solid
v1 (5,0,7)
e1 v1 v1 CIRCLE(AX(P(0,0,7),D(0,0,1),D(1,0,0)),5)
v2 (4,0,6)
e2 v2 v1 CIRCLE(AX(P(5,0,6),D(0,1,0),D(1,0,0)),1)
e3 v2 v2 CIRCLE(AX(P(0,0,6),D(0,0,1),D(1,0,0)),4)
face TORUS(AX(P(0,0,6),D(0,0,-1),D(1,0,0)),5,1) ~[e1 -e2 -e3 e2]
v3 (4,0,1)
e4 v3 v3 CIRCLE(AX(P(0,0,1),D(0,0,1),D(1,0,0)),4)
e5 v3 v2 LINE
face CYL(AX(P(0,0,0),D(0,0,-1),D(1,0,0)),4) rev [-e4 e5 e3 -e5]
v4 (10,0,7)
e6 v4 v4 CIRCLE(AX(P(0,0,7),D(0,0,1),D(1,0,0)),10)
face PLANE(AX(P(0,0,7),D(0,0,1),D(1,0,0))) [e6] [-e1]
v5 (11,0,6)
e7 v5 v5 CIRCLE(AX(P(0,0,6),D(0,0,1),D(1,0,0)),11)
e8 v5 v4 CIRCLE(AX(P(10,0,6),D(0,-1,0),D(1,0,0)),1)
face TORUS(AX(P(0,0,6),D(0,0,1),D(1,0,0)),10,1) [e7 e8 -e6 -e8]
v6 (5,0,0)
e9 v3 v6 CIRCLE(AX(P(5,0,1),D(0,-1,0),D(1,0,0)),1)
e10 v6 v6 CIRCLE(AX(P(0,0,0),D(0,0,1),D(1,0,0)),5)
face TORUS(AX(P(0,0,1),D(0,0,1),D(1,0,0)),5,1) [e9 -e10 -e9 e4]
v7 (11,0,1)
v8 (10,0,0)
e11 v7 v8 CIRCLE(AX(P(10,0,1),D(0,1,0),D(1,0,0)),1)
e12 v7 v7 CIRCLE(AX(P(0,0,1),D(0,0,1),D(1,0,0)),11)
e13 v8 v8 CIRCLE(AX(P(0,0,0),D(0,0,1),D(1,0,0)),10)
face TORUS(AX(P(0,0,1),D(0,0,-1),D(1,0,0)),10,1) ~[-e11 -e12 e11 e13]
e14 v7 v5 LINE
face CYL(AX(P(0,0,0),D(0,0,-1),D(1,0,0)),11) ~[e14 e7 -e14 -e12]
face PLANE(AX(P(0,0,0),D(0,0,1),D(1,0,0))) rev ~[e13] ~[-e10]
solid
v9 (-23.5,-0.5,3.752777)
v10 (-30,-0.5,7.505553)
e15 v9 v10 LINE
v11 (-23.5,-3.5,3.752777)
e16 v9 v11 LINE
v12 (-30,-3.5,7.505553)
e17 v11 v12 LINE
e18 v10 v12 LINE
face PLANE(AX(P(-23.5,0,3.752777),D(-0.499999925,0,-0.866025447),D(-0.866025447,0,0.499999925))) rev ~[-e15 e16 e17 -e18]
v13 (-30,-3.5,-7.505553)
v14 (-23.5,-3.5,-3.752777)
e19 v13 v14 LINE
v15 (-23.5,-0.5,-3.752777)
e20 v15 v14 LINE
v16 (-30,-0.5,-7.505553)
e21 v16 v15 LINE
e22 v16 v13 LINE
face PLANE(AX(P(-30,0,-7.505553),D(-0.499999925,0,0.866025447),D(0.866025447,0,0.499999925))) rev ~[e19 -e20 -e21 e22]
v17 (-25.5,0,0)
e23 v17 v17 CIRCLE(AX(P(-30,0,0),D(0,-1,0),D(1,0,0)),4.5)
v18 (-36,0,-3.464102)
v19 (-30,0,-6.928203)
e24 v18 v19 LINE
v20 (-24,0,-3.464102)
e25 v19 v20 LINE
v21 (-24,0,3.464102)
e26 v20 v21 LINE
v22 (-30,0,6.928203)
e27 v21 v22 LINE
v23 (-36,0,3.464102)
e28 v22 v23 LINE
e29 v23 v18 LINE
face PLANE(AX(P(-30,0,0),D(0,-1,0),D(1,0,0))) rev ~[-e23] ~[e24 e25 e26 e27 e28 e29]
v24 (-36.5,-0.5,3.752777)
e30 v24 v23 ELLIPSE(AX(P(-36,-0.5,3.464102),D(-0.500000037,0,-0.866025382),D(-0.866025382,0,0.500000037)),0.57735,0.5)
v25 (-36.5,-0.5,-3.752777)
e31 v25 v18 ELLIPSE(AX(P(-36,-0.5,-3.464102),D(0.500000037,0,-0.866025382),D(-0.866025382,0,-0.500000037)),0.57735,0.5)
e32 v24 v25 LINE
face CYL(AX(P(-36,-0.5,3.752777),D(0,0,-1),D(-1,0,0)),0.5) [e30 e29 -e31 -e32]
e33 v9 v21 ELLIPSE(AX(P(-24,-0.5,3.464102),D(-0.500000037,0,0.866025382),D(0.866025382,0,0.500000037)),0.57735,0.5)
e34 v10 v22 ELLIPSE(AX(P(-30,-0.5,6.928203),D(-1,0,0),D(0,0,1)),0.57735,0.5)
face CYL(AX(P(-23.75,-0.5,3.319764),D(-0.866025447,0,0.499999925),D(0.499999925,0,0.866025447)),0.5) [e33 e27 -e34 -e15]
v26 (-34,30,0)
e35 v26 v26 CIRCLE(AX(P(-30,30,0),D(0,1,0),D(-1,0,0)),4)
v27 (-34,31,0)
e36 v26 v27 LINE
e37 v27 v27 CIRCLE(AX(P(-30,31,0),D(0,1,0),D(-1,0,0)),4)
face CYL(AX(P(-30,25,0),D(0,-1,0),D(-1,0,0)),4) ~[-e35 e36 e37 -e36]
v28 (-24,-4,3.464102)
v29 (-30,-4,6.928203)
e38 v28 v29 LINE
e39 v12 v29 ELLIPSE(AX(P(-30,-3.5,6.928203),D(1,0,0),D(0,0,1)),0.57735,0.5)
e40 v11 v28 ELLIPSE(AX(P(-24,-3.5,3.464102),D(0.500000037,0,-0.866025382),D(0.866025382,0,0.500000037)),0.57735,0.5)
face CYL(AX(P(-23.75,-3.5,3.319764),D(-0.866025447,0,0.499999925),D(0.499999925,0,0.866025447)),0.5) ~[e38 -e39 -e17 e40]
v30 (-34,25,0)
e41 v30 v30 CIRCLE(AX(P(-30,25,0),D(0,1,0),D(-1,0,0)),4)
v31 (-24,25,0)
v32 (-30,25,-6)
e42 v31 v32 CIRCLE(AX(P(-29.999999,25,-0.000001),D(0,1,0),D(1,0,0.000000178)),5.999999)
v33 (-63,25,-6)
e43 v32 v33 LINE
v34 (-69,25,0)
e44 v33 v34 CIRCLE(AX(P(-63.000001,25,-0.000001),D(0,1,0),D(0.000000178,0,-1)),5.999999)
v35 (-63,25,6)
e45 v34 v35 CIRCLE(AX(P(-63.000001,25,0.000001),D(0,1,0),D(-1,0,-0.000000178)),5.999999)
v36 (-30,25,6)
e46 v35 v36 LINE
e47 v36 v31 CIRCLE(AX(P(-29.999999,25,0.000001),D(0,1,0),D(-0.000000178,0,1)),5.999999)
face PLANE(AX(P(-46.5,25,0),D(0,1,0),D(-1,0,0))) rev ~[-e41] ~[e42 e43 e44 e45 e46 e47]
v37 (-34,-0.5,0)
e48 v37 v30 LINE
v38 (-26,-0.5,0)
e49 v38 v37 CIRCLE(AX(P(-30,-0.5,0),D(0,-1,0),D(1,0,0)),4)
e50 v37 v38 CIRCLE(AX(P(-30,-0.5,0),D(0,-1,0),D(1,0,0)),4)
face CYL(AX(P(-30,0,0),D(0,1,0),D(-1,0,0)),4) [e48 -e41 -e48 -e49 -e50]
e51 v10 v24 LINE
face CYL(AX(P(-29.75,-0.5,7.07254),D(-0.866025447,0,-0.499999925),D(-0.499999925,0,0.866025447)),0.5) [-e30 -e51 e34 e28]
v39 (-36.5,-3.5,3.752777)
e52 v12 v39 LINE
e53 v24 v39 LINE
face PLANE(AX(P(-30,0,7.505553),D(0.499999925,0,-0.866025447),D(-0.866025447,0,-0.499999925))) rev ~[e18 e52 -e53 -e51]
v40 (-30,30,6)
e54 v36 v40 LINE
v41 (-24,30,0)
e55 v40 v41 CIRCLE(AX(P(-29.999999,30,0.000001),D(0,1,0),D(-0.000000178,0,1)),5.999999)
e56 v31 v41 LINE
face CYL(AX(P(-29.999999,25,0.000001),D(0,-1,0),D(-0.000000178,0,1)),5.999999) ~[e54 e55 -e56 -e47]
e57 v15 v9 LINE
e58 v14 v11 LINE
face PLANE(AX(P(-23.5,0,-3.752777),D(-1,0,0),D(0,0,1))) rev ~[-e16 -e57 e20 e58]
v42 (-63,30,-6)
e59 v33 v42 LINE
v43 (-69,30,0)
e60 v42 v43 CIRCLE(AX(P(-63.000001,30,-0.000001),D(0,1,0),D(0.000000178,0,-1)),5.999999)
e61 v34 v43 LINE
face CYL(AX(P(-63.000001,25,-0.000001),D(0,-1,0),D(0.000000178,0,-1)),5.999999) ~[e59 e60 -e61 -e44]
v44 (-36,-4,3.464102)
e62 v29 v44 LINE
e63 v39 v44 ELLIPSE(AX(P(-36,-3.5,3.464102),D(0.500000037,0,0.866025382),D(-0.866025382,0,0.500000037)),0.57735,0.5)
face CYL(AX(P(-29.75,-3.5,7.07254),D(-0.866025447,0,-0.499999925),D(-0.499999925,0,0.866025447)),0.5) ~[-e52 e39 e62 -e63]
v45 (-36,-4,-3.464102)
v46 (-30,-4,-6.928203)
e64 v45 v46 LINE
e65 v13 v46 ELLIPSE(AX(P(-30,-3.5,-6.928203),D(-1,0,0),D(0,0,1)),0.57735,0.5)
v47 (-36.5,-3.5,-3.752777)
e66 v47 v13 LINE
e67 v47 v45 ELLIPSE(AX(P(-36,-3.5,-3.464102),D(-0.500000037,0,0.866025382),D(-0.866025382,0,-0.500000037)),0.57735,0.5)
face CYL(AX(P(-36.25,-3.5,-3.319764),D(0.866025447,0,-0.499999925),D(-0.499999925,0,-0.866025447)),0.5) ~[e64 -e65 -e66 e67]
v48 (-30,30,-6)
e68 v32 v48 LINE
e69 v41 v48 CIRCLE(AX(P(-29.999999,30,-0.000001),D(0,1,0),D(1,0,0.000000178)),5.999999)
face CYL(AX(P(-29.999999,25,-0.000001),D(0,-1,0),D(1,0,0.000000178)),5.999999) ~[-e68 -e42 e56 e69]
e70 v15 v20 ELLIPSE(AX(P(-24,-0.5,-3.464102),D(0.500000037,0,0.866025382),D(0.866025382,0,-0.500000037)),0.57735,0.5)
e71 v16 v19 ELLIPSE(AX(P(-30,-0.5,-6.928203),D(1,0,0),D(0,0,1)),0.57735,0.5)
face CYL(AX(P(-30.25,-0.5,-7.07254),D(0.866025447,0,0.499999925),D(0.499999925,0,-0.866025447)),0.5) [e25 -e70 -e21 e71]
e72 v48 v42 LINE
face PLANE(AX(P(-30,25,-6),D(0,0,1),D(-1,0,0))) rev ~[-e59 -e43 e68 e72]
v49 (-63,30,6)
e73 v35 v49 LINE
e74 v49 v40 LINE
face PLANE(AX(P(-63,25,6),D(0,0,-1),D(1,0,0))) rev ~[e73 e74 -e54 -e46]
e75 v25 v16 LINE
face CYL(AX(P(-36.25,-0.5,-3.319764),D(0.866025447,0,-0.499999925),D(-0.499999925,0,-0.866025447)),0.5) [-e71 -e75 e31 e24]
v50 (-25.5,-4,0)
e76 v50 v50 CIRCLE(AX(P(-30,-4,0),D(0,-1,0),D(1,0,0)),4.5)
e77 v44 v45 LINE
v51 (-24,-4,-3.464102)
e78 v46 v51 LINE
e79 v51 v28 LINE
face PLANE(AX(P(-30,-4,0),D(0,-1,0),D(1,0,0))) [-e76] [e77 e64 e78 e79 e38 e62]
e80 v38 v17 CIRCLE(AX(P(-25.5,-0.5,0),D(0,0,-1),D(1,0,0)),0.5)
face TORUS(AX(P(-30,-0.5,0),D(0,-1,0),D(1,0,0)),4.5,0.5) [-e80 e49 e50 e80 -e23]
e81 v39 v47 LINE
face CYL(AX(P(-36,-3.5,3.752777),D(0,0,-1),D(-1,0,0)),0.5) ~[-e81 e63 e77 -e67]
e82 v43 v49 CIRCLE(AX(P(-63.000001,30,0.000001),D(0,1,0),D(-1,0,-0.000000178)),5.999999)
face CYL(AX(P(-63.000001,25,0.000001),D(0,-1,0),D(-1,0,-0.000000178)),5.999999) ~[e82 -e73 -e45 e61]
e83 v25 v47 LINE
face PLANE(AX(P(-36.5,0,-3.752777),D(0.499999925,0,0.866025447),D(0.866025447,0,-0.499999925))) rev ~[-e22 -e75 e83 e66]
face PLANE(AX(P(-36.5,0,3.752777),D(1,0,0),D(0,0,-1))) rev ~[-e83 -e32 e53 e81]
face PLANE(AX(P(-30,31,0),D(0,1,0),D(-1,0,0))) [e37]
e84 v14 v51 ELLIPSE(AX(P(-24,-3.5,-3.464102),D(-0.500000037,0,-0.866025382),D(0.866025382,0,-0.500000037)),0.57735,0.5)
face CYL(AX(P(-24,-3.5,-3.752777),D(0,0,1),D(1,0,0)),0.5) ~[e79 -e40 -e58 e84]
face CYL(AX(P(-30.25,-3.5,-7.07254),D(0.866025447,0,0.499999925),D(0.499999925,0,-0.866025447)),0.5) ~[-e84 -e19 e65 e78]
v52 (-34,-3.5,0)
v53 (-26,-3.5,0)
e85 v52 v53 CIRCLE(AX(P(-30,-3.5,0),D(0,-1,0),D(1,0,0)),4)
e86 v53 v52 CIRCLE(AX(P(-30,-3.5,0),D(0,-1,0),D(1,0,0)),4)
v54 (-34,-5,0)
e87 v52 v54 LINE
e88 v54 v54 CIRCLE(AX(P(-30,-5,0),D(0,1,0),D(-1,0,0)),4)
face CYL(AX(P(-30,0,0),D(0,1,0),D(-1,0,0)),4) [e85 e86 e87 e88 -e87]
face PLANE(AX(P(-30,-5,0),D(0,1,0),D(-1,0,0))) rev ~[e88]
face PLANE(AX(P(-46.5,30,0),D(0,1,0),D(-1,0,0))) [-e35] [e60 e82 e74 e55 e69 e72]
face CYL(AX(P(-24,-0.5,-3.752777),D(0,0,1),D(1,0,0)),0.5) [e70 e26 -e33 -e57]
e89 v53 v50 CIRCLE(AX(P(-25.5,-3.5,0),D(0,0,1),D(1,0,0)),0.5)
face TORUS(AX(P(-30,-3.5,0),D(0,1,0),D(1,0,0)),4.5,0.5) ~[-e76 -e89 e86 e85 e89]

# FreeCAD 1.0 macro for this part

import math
import FreeCAD as App
import Part
import Sketcher
Q = App.Units.Quantity


def edges_at(feature, points):
    """Names of the edges that pass closest to the given points."""
    edges = feature.Shape.Edges
    near = lambda p: min(range(len(edges)), key=lambda i: edges[i].distToShape(Part.Vertex(*p))[0])
    return sorted({f"Edge{near(p) + 1}" for p in points})

doc = App.newDocument("Part")
body = doc.addObject("PartDesign::Body", "Body")

# Sketch on XY plane
sketch1 = body.newObject("Sketcher::SketchObject", "Sketch")
sketch1.AttachmentSupport = (doc.getObject("XY_Plane"), [""])
sketch1.MapMode = "FlatFace"
sketch1.addGeometry([
    Part.Circle(App.Vector(0, 0, 0), App.Vector(0, 0, 1), 11),
    Part.Circle(App.Vector(0, 0, 0), App.Vector(0, 0, 1), 4),
], False)
sketch1.addConstraint([
    Sketcher.Constraint("Coincident", 0, 3, -1, 1),
    Sketcher.Constraint("Coincident", 1, 3, -1, 1),
    Sketcher.Constraint("Diameter", 0, Q("22 mm")),
    Sketcher.Constraint("Diameter", 1, Q("8 mm")),
])
pad1 = body.newObject("PartDesign::Pad", "Pad")
pad1.Profile = sketch1
pad1.Length = 7
doc.recompute()

fillet = body.newObject("PartDesign::Fillet", "Fillet")
fillet.Base = (pad1, ["Edge1"])
fillet.UseAllEdges = True
fillet.Radius = 1
body2 = doc.addObject("PartDesign::Body", "Body001")
body2.AllowCompound = True

# Sketch on XZ plane
sketch2 = body2.newObject("Sketcher::SketchObject", "Sketch001")
sketch2.AttachmentSupport = (doc.getObject("XZ_Plane001"), [""])
sketch2.MapMode = "FlatFace"
sketch2.addGeometry([
    Part.LineSegment(App.Vector(-23.5, -3.8, 0), App.Vector(-23.5, 3.8, 0)),  # 0
    Part.LineSegment(App.Vector(-23.5, 3.8, 0), App.Vector(-30, 7.5, 0)),  # 1
    Part.LineSegment(App.Vector(-30, 7.5, 0), App.Vector(-36.5, 3.8, 0)),  # 2
    Part.LineSegment(App.Vector(-36.5, 3.8, 0), App.Vector(-36.5, -3.8, 0)),  # 3
    Part.LineSegment(App.Vector(-36.5, -3.8, 0), App.Vector(-30, -7.5, 0)),  # 4
    Part.LineSegment(App.Vector(-30, -7.5, 0), App.Vector(-23.5, -3.8, 0)),  # 5
    Part.Circle(App.Vector(-30, 0, 0), App.Vector(0, 0, 1), 4),  # 6
], False)
sketch2.addConstraint([
    Sketcher.Constraint("Coincident", 0, 2, 1, 1),
    Sketcher.Constraint("Coincident", 1, 2, 2, 1),
    Sketcher.Constraint("Coincident", 2, 2, 3, 1),
    Sketcher.Constraint("Coincident", 3, 2, 4, 1),
    Sketcher.Constraint("Coincident", 4, 2, 5, 1),
    Sketcher.Constraint("Coincident", 5, 2, 0, 1),
    Sketcher.Constraint("Vertical", 0),
    Sketcher.Constraint("Vertical", 3),
    Sketcher.Constraint("Symmetric", 1, 2, 4, 2, -1),
    Sketcher.Constraint("PointOnObject", 6, 3, -1),
    Sketcher.Constraint("Parallel", 1, 4),
    Sketcher.Constraint("Parallel", 2, 5),
    Sketcher.Constraint("Horizontal", 0, 2, 2, 2),
    Sketcher.Constraint("Horizontal", 3, 2, 5, 2),
    Sketcher.Constraint("Vertical", 6, 3, 1, 2),
    Sketcher.Constraint("Diameter", 6, Q("8 mm")),
    Sketcher.Constraint("Angle", 1, Q("150.000005 deg")),
    Sketcher.Constraint("DistanceX", 6, 3, -1, 1, Q("30 mm")),
    Sketcher.Constraint("DistanceX", 2, 2, 0, 2, Q("13 mm")),
    Sketcher.Constraint("DistanceY", 0, 1, 0, 2, Q("7.505554 mm")),
])
pad2 = body2.newObject("PartDesign::Pad", "Pad001")
pad2.Profile = sketch2
pad2.Length = 4
doc.recompute()

fillet2 = body2.newObject("PartDesign::Fillet", "Fillet001")
fillet2.Base = (pad2, edges_at(pad2, [
    (-26.75, -4, -5.629),
    (-23.5, -4, 0),
    (-26.75, -4, 5.629),
    (-33.25, -4, 5.629),
    (-36.5, -4, 0),
    (-33.25, -4, -5.629),
    (-34, -4, 0),
    (-26.75, 0, -5.629),
    (-23.5, 0, 0),
    (-26.75, 0, 5.629),
    (-33.25, 0, 5.629),
    (-36.5, 0, 0),
    (-33.25, 0, -5.629),
    (-34, 0, 0),
]))
fillet2.Radius = 0.5

# Sketch on XZ plane
sketch3 = body2.newObject("Sketcher::SketchObject", "Sketch002")
sketch3.AttachmentSupport = (doc.getObject("XZ_Plane001"), [""])
sketch3.MapMode = "FlatFace"
sketch3.addGeometry(Part.Circle(App.Vector(-30, 0, 0), App.Vector(0, 0, 1), 4), False)
sketch3.addConstraint([
    Sketcher.Constraint("PointOnObject", 0, 3, -1),
    Sketcher.Constraint("Diameter", 0, Q("8 mm")),
    Sketcher.Constraint("DistanceX", 0, 3, -1, 1, Q("30 mm")),
])
pad3 = body2.newObject("PartDesign::Pad", "Pad002")
pad3.Profile = sketch3
pad3.Type = "TwoLengths"
pad3.Length = 25
pad3.Length2 = 5
pad3.Reversed = True

# Sketch on XZ plane
sketch4 = body2.newObject("Sketcher::SketchObject", "Sketch003")
sketch4.AttachmentSupport = (doc.getObject("XZ_Plane001"), [""])
sketch4.MapMode = "FlatFace"
sketch4.AttachmentOffset = App.Placement(App.Vector(0, 0, -25), App.Rotation())
sketch4.addGeometry([
    Part.LineSegment(App.Vector(-63, 6, 0), App.Vector(-30, 6, 0)),  # 0
    Part.ArcOfCircle(Part.Circle(App.Vector(-30, 0, 0), App.Vector(0, 0, 1), 6), math.radians(0), math.radians(90)),  # 1
    Part.ArcOfCircle(Part.Circle(App.Vector(-30, 0, 0), App.Vector(0, 0, 1), 6), math.radians(-90), math.radians(0)),  # 2
    Part.LineSegment(App.Vector(-30, -6, 0), App.Vector(-63, -6, 0)),  # 3
    Part.ArcOfCircle(Part.Circle(App.Vector(-63, 0, 0), App.Vector(0, 0, 1), 6), math.radians(180), math.radians(270)),  # 4
    Part.ArcOfCircle(Part.Circle(App.Vector(-63, 0, 0), App.Vector(0, 0, 1), 6), math.radians(90), math.radians(180)),  # 5
    Part.Circle(App.Vector(-30, 0, 0), App.Vector(0, 0, 1), 4),  # 6
], False)
sketch4.addConstraint([
    Sketcher.Constraint("Tangent", 0, 2, 1, 2),
    Sketcher.Constraint("Tangent", 1, 1, 2, 2),
    Sketcher.Constraint("Tangent", 2, 1, 3, 1),
    Sketcher.Constraint("Tangent", 3, 2, 4, 2),
    Sketcher.Constraint("Tangent", 4, 1, 5, 2),
    Sketcher.Constraint("Tangent", 5, 1, 0, 1),
    Sketcher.Constraint("Horizontal", 0),
    Sketcher.Constraint("Horizontal", 3),
    Sketcher.Constraint("Coincident", 6, 3, 1, 3),
    Sketcher.Constraint("Equal", 1, 2),
    Sketcher.Constraint("Equal", 2, 4),
    Sketcher.Constraint("PointOnObject", 1, 3, -1),
    Sketcher.Constraint("PointOnObject", 1, 1, -1),
    Sketcher.Constraint("PointOnObject", 4, 1, -1),
    Sketcher.Constraint("Diameter", 6, Q("8 mm")),
    Sketcher.Constraint("Radius", 1, Q("5.999999 mm")),
    Sketcher.Constraint("DistanceX", 0, 1, 0, 2, Q("33 mm")),
    Sketcher.Constraint("DistanceX", 1, 3, -1, 1, Q("29.999999 mm")),
])
pad4 = body2.newObject("PartDesign::Pad", "Pad003")
pad4.Profile = sketch4
pad4.Length = 5
pad4.Reversed = True

# Sketch on XZ plane
sketch5 = body2.newObject("Sketcher::SketchObject", "Sketch004")
sketch5.AttachmentSupport = (doc.getObject("XZ_Plane001"), [""])
sketch5.MapMode = "FlatFace"
sketch5.AttachmentOffset = App.Placement(App.Vector(0, 0, -25), App.Rotation())
sketch5.addGeometry(Part.Circle(App.Vector(-30, 0, 0), App.Vector(0, 0, 1), 4), False)
sketch5.addConstraint([
    Sketcher.Constraint("PointOnObject", 0, 3, -1),
    Sketcher.Constraint("Diameter", 0, Q("8 mm")),
    Sketcher.Constraint("DistanceX", 0, 3, -1, 1, Q("30 mm")),
])
pad5 = body2.newObject("PartDesign::Pad", "Pad004")
pad5.Profile = sketch5
pad5.Length = 6
pad5.Reversed = True

doc.recompute()
